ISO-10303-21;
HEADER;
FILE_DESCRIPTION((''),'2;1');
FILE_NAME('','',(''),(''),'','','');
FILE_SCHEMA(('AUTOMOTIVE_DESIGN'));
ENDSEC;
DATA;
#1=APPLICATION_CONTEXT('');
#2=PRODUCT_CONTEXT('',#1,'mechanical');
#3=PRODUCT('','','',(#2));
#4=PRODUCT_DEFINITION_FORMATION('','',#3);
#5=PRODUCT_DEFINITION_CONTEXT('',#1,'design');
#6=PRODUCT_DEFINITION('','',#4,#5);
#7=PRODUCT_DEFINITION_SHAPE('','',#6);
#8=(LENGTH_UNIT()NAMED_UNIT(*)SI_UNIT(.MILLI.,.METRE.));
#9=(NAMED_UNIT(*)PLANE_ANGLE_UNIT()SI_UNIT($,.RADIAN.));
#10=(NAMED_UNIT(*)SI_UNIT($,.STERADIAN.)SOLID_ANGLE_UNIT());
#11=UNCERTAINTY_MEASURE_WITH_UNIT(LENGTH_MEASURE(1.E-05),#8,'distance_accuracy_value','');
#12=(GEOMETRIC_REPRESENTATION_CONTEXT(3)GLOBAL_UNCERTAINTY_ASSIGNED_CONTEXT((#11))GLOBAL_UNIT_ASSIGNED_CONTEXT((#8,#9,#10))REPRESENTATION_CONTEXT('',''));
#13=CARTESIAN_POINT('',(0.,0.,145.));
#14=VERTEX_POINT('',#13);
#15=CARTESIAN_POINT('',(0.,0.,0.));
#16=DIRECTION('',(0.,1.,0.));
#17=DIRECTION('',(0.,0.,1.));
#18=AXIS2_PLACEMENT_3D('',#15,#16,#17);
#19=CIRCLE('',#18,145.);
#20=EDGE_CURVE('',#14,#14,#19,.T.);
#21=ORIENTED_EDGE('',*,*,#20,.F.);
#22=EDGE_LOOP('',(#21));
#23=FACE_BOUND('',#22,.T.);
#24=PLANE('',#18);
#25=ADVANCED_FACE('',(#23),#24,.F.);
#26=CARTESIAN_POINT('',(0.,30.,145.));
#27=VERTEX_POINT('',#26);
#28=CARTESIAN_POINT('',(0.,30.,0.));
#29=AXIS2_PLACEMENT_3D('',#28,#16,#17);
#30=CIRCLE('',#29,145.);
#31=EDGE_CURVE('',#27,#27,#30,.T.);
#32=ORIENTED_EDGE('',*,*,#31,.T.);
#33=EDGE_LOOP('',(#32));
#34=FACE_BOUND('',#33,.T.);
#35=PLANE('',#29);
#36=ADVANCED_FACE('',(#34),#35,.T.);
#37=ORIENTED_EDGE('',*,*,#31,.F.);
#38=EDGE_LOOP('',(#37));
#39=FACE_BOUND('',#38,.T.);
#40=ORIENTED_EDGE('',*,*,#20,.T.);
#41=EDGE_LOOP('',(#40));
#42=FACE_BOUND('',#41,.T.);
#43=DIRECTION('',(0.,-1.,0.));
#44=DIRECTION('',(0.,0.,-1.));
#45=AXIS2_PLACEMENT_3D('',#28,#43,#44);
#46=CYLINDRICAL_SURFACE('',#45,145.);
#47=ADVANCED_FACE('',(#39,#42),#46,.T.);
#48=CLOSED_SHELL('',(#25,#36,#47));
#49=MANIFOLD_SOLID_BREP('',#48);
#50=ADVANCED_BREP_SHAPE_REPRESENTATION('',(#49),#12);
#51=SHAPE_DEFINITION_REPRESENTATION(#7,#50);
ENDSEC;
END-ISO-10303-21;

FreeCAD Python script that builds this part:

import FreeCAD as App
import Part
import Sketcher
Q = App.Units.Quantity

doc = App.newDocument("Part")
body = doc.addObject("PartDesign::Body", "Body")

# Sketch on XZ plane
sketch1 = doc.addObject("Sketcher::SketchObject", "Sketch")
body.addObject(sketch1)
sketch1.AttachmentSupport = (doc.XZ_Plane, [""])
sketch1.MapMode = "FlatFace"
sketch1.addGeometry(Part.Circle(App.Vector(0, 0, 0), App.Vector(0, 0, 1), 145), False)
sketch1.addConstraint([
    Sketcher.Constraint("Coincident", 0, 3, -1, 1),
    Sketcher.Constraint("Diameter", 0, Q("290 mm")),
])
pad1 = doc.addObject("PartDesign::Pad", "Pad")
body.addObject(pad1)
pad1.Profile = sketch1
pad1.Length = 30
pad1.Reversed = True

doc.recompute()
